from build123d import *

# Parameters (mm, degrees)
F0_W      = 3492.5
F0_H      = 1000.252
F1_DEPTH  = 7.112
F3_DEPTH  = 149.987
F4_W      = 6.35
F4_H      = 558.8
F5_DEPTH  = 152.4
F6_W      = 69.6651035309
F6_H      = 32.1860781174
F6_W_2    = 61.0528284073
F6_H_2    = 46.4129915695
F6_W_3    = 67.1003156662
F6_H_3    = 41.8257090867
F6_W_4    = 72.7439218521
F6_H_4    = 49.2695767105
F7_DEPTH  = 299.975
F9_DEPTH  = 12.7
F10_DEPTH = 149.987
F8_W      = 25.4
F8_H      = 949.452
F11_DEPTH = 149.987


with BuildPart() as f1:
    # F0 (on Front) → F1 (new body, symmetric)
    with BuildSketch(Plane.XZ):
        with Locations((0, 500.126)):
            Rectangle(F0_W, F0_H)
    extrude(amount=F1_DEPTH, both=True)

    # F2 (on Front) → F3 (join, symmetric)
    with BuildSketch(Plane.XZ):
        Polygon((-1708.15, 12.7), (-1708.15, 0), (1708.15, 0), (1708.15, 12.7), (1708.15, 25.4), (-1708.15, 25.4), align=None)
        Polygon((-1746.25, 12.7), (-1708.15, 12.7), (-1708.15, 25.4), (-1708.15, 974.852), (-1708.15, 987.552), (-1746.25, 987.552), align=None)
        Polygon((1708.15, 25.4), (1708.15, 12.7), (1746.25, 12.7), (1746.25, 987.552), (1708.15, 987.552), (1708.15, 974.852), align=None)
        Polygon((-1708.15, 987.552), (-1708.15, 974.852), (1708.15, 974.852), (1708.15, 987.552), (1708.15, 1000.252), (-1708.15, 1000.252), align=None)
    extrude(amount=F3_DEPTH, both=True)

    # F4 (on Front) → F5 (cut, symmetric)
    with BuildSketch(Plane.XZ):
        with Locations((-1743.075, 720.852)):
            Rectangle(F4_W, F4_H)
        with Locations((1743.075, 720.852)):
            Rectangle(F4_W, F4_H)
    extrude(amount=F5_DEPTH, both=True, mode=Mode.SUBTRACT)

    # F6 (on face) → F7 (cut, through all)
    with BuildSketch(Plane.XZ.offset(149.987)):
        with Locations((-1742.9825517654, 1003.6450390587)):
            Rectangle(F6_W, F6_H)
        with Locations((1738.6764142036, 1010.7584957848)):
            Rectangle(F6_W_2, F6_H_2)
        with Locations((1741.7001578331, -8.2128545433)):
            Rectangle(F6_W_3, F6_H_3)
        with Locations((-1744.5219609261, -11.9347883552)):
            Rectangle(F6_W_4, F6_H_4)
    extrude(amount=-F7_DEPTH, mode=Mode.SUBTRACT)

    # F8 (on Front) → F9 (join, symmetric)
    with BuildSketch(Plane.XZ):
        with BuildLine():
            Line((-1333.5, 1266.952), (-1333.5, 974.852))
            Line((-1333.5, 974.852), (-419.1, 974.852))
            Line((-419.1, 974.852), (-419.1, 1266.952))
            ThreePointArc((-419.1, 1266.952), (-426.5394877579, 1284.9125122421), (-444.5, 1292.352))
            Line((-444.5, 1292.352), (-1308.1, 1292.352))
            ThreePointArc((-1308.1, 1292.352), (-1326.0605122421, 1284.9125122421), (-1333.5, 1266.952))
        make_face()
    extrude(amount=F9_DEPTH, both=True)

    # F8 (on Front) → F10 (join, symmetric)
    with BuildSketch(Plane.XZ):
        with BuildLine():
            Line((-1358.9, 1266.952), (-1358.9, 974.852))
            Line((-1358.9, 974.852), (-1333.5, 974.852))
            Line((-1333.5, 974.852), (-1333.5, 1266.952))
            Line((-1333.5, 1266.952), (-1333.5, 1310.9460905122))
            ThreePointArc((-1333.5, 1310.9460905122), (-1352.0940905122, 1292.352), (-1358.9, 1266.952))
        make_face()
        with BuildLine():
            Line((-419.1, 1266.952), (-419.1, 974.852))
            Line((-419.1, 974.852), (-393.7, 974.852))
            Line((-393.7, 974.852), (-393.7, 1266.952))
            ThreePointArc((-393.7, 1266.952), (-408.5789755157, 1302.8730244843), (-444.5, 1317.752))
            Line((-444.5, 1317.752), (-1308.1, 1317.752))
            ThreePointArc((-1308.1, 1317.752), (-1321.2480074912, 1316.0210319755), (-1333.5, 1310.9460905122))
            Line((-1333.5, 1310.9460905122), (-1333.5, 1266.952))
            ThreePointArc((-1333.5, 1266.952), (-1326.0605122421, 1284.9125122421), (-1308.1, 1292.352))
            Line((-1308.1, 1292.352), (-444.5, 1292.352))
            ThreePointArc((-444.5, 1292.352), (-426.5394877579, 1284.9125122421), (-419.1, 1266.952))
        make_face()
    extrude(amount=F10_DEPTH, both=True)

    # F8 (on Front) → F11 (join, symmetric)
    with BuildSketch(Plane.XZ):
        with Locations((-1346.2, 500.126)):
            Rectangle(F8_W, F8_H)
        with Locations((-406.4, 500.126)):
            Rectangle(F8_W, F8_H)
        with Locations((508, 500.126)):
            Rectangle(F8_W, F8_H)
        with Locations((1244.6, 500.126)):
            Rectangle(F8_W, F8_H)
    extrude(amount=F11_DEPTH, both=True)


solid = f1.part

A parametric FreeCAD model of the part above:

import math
import FreeCAD as App
import Part
import Sketcher
Q = App.Units.Quantity


def add_polygon(sketch, points):
    """Adds a closed chain of lines whose ends are joined by coincident constraints."""
    first, n = sketch.GeometryCount, len(points)
    for a, b in zip(points, points[1:] + points[:1]):
        sketch.addGeometry(Part.LineSegment(App.Vector(*a, 0), App.Vector(*b, 0)), False)
    for i in range(n):
        sketch.addConstraint(Sketcher.Constraint("Coincident", first + i, 2, first + (i + 1) % n, 1))

doc = App.newDocument("Part")
body = doc.addObject("PartDesign::Body", "Body")

# Sketch on XZ plane
sketch1 = body.newObject("Sketcher::SketchObject", "Sketch")
sketch1.AttachmentSupport = (doc.getObject("XZ_Plane"), [""])
sketch1.MapMode = "FlatFace"
add_polygon(sketch1, [(-1746.25, 1000.252), (-1746.25, 0), (1746.25, 0), (1746.25, 1000.252)])  # lines 0-3
sketch1.addConstraint([
    Sketcher.Constraint("Vertical", 0),
    Sketcher.Constraint("Horizontal", 1),
    Sketcher.Constraint("Vertical", 2),
    Sketcher.Constraint("Horizontal", 3),
    Sketcher.Constraint("Symmetric", 0, 2, 1, 2, -1, 1),
    Sketcher.Constraint("DistanceX", 1, 1, 1, 2, Q("137.5 in")),
    Sketcher.Constraint("DistanceY", 0, 2, 0, 1, Q("39.38 in")),
])
pad1 = body.newObject("PartDesign::Pad", "Pad")
pad1.Profile = sketch1
pad1.Length = Q("0.56 in")
pad1.Midplane = True

# Sketch on XZ plane
sketch2 = body.newObject("Sketcher::SketchObject", "Sketch001")
sketch2.AttachmentSupport = (doc.getObject("XZ_Plane"), [""])
sketch2.MapMode = "FlatFace"
add_polygon(sketch2, [(-1708.15, 0), (1708.15, 0), (1708.15, 12.7), (1746.25, 12.7), (1746.25, 987.552), (1708.15, 987.552), (1708.15, 1000.252), (-1708.15, 1000.252), (-1708.15, 987.552), (-1746.25, 987.552), (-1746.25, 12.7), (-1708.15, 12.7)])  # lines 0-11
add_polygon(sketch2, [(1708.15, 974.852), (1708.15, 25.4), (-1708.15, 25.4), (-1708.15, 974.852)])  # lines 12-15
sketch2.addConstraint([
    Sketcher.Constraint("Horizontal", 0),
    Sketcher.Constraint("Vertical", 1),
    Sketcher.Constraint("Horizontal", 2),
    Sketcher.Constraint("Vertical", 3),
    Sketcher.Constraint("Horizontal", 4),
    Sketcher.Constraint("Vertical", 5),
    Sketcher.Constraint("Horizontal", 6),
    Sketcher.Constraint("Vertical", 7),
    Sketcher.Constraint("Horizontal", 8),
    Sketcher.Constraint("Vertical", 9),
    Sketcher.Constraint("Horizontal", 10),
    Sketcher.Constraint("Vertical", 11),
    Sketcher.Constraint("Vertical", 12),
    Sketcher.Constraint("Horizontal", 13),
    Sketcher.Constraint("Vertical", 14),
    Sketcher.Constraint("Horizontal", 15),
    Sketcher.Constraint("Symmetric", 0, 2, 11, 2, -1, 1),
    Sketcher.Constraint("Symmetric", 4, 2, 7, 2, -2),
    Sketcher.Constraint("Symmetric", 2, 2, 9, 2, -2),
    Sketcher.Constraint("Vertical", 1, 2, 4, 2),
    Sketcher.Constraint("Vertical", 5, 2, 12, 2),
    Sketcher.Constraint("Vertical", 11, 2, 13, 2),
    Sketcher.Constraint("Equal", 1, 5),
    Sketcher.Constraint("DistanceX", 0, 1, 0, 2, Q("134.5 in")),
    Sketcher.Constraint("DistanceX", 2, 1, 2, 2, Q("1.5 in")),
    Sketcher.Constraint("DistanceY", 1, 1, 1, 2, Q("0.5 in")),
    Sketcher.Constraint("DistanceY", -1, 1, 12, 2, Q("1 in")),
    Sketcher.Constraint("DistanceY", 14, 2, 6, 2, Q("1 in")),
    Sketcher.Constraint("DistanceY", 3, 1, 3, 2, Q("38.38 in")),
])
pad2 = body.newObject("PartDesign::Pad", "Pad001")
pad2.Profile = sketch2
pad2.Length = Q("11.81 in")
pad2.Midplane = True

# Sketch on XZ plane
sketch3 = body.newObject("Sketcher::SketchObject", "Sketch002")
sketch3.AttachmentSupport = (doc.getObject("XZ_Plane"), [""])
sketch3.MapMode = "FlatFace"
add_polygon(sketch3, [(-1746.25, 1000.252), (-1746.25, 441.452), (-1739.9, 441.452), (-1739.9, 1000.252)])  # lines 0-3
add_polygon(sketch3, [(1739.9, 1000.252), (1739.9, 441.452), (1746.25, 441.452), (1746.25, 1000.252)])  # lines 4-7
sketch3.addConstraint([
    Sketcher.Constraint("Vertical", 0),
    Sketcher.Constraint("Horizontal", 1),
    Sketcher.Constraint("Vertical", 2),
    Sketcher.Constraint("Horizontal", 3),
    Sketcher.Constraint("Vertical", 4),
    Sketcher.Constraint("Horizontal", 5),
    Sketcher.Constraint("Vertical", 6),
    Sketcher.Constraint("Horizontal", 7),
    Sketcher.Constraint("Symmetric", 1, 2, 4, 2, -2),
    Sketcher.Constraint("Symmetric", 3, 2, 6, 2, -2),
    Sketcher.Constraint("DistanceY", 0, 2, 0, 1, Q("22 in")),
    Sketcher.Constraint("DistanceX", 1, 2, 4, 2, Q("137 in")),
    Sketcher.Constraint("DistanceX", 1, 1, 1, 2, Q("0.25 in")),
    Sketcher.Constraint("DistanceY", -1, 1, 0, 2, Q("17.38 in")),
])
pocket1 = body.newObject("PartDesign::Pocket", "Pocket")
pocket1.Profile = sketch3
pocket1.Length = Q("12 in")
pocket1.Midplane = True

# Sketch on XZ plane
sketch4 = body.newObject("Sketcher::SketchObject", "Sketch003")
sketch4.AttachmentSupport = (doc.getObject("XZ_Plane"), [""])
sketch4.MapMode = "FlatFace"
sketch4.AttachmentOffset = App.Placement(App.Vector(0, 0, 5.905 * 25.4), App.Rotation())
add_polygon(sketch4, [(-1777.815104, 1019.738078), (-1777.815104, 987.552), (-1708.15, 987.552), (-1708.15, 1019.738078)])  # lines 0-3
add_polygon(sketch4, [(1708.15, 1033.964992), (1708.15, 987.552), (1769.202828, 987.552), (1769.202828, 1033.964992)])  # lines 4-7
add_polygon(sketch4, [(1708.15, 12.7), (1708.15, -29.125709), (1775.250316, -29.125709), (1775.250316, 12.7)])  # lines 8-11
add_polygon(sketch4, [(-1780.893922, 12.7), (-1780.893922, -36.569577), (-1708.15, -36.569577), (-1708.15, 12.7)])  # lines 12-15
sketch4.addConstraint([
    Sketcher.Constraint("Vertical", 0),
    Sketcher.Constraint("Horizontal", 1),
    Sketcher.Constraint("Vertical", 2),
    Sketcher.Constraint("Horizontal", 3),
    Sketcher.Constraint("Vertical", 4),
    Sketcher.Constraint("Horizontal", 5),
    Sketcher.Constraint("Vertical", 6),
    Sketcher.Constraint("Horizontal", 7),
    Sketcher.Constraint("Vertical", 8),
    Sketcher.Constraint("Horizontal", 9),
    Sketcher.Constraint("Vertical", 10),
    Sketcher.Constraint("Horizontal", 11),
    Sketcher.Constraint("Vertical", 12),
    Sketcher.Constraint("Horizontal", 13),
    Sketcher.Constraint("Vertical", 14),
    Sketcher.Constraint("Horizontal", 15),
    Sketcher.Constraint("Symmetric", 1, 2, 4, 2, -2),
    Sketcher.Constraint("Symmetric", 11, 2, 14, 2, -2),
    Sketcher.Constraint("Vertical", 7, 2, 8, 2),
    Sketcher.Constraint("DistanceY", -1, 1, 10, 2, Q("0.5 in")),
    Sketcher.Constraint("DistanceX", 1, 2, 4, 2, Q("134.5 in")),
    Sketcher.Constraint("DistanceY", -1, 1, 0, 2, Q("38.88 in")),
    Sketcher.Constraint("DistanceX", 5, 1, 5, 2, Q("61.052828 mm")),
    Sketcher.Constraint("DistanceX", 13, 1, 13, 2, Q("72.743922 mm")),
    Sketcher.Constraint("DistanceY", 0, 2, 0, 1, Q("32.186078 mm")),
    Sketcher.Constraint("DistanceY", 4, 2, 4, 1, Q("46.412992 mm")),
    Sketcher.Constraint("DistanceY", 8, 2, 8, 1, Q("41.825709 mm")),
    Sketcher.Constraint("DistanceX", 1, 1, 1, 2, Q("69.665104 mm")),
    Sketcher.Constraint("DistanceX", 9, 1, 9, 2, Q("67.100316 mm")),
    Sketcher.Constraint("DistanceY", 12, 2, 12, 1, Q("49.269577 mm")),
])
pocket2 = body.newObject("PartDesign::Pocket", "Pocket001")
pocket2.Profile = sketch4
pocket2.Type = "ThroughAll"

# Sketch on XZ plane
sketch5 = body.newObject("Sketcher::SketchObject", "Sketch004")
sketch5.AttachmentSupport = (doc.getObject("XZ_Plane"), [""])
sketch5.MapMode = "FlatFace"
sketch5.addGeometry([
    Part.LineSegment(App.Vector(-1333.5, 1266.952, 0), App.Vector(-1333.5, 974.852, 0)),  # 0
    Part.LineSegment(App.Vector(-1333.5, 974.852, 0), App.Vector(-419.1, 974.852, 0)),  # 1
    Part.LineSegment(App.Vector(-419.1, 974.852, 0), App.Vector(-419.1, 1266.952, 0)),  # 2
    Part.ArcOfCircle(Part.Circle(App.Vector(-444.5, 1266.952, 0), App.Vector(0, 0, 1), 25.4), math.radians(0), math.radians(90)),  # 3
    Part.LineSegment(App.Vector(-444.5, 1292.352, 0), App.Vector(-1308.1, 1292.352, 0)),  # 4
    Part.ArcOfCircle(Part.Circle(App.Vector(-1308.1, 1266.952, 0), App.Vector(0, 0, 1), 25.4), math.radians(90), math.radians(180)),  # 5
], False)
sketch5.addConstraint([
    Sketcher.Constraint("Coincident", 0, 2, 1, 1),
    Sketcher.Constraint("Coincident", 1, 2, 2, 1),
    Sketcher.Constraint("Tangent", 2, 2, 3, 1),
    Sketcher.Constraint("Tangent", 3, 2, 4, 1),
    Sketcher.Constraint("Tangent", 4, 2, 5, 1),
    Sketcher.Constraint("Tangent", 5, 2, 0, 1),
    Sketcher.Constraint("Vertical", 0),
    Sketcher.Constraint("Horizontal", 1),
    Sketcher.Constraint("Vertical", 2),
    Sketcher.Constraint("Horizontal", 4),
    Sketcher.Constraint("Equal", 3, 5),
    Sketcher.Constraint("Radius", 3, Q("1 in")),
    Sketcher.Constraint("DistanceX", 1, 1, 1, 2, Q("36 in")),
    Sketcher.Constraint("DistanceY", 0, 2, 0, 1, Q("11.5 in")),
    Sketcher.Constraint("DistanceX", 3, 3, -1, 1, Q("17.5 in")),
    Sketcher.Constraint("DistanceY", -1, 1, 3, 3, Q("49.88 in")),
])
pad3 = body.newObject("PartDesign::Pad", "Pad002")
pad3.Profile = sketch5
pad3.Length = Q("1 in")
pad3.Midplane = True

# Sketch on XZ plane
sketch6 = body.newObject("Sketcher::SketchObject", "Sketch005")
sketch6.AttachmentSupport = (doc.getObject("XZ_Plane"), [""])
sketch6.MapMode = "FlatFace"
sketch6.addGeometry([
    Part.LineSegment(App.Vector(-1358.9, 1266.952, 0), App.Vector(-1358.9, 974.852, 0)),  # 0
    Part.LineSegment(App.Vector(-1358.9, 974.852, 0), App.Vector(-1333.5, 974.852, 0)),  # 1
    Part.LineSegment(App.Vector(-1333.5, 974.852, 0), App.Vector(-1333.5, 1266.952, 0)),  # 2
    Part.ArcOfCircle(Part.Circle(App.Vector(-1308.1, 1266.952, 0), App.Vector(0, 0, 1), 25.4), math.radians(90), math.radians(180)),  # 3
    Part.LineSegment(App.Vector(-1308.1, 1292.352, 0), App.Vector(-444.5, 1292.352, 0)),  # 4
    Part.ArcOfCircle(Part.Circle(App.Vector(-444.5, 1266.952, 0), App.Vector(0, 0, 1), 25.4), math.radians(0), math.radians(90)),  # 5
    Part.LineSegment(App.Vector(-419.1, 1266.952, 0), App.Vector(-419.1, 974.852, 0)),  # 6
    Part.LineSegment(App.Vector(-419.1, 974.852, 0), App.Vector(-393.7, 974.852, 0)),  # 7
    Part.LineSegment(App.Vector(-393.7, 974.852, 0), App.Vector(-393.7, 1266.952, 0)),  # 8
    Part.ArcOfCircle(Part.Circle(App.Vector(-444.5, 1266.952, 0), App.Vector(0, 0, 1), 50.8), math.radians(0), math.radians(90)),  # 9
    Part.LineSegment(App.Vector(-444.5, 1317.752, 0), App.Vector(-1308.1, 1317.752, 0)),  # 10
    Part.ArcOfCircle(Part.Circle(App.Vector(-1308.1, 1266.952, 0), App.Vector(0, 0, 1), 50.8), math.radians(90), math.radians(120)),  # 11
    Part.ArcOfCircle(Part.Circle(App.Vector(-1308.1, 1266.952, 0), App.Vector(0, 0, 1), 50.8), math.radians(120), math.radians(180)),  # 12
], False)
sketch6.addConstraint([
    Sketcher.Constraint("Coincident", 0, 2, 1, 1),
    Sketcher.Constraint("Coincident", 1, 2, 2, 1),
    Sketcher.Constraint("Tangent", 2, 2, 3, 2),
    Sketcher.Constraint("Tangent", 3, 1, 4, 1),
    Sketcher.Constraint("Tangent", 4, 2, 5, 2),
    Sketcher.Constraint("Tangent", 5, 1, 6, 1),
    Sketcher.Constraint("Coincident", 6, 2, 7, 1),
    Sketcher.Constraint("Coincident", 7, 2, 8, 1),
    Sketcher.Constraint("Tangent", 8, 2, 9, 1),
    Sketcher.Constraint("Tangent", 9, 2, 10, 1),
    Sketcher.Constraint("Tangent", 10, 2, 11, 1),
    Sketcher.Constraint("Tangent", 11, 2, 12, 1),
    Sketcher.Constraint("Tangent", 12, 2, 0, 1),
    Sketcher.Constraint("Vertical", 0),
    Sketcher.Constraint("Horizontal", 1),
    Sketcher.Constraint("Vertical", 2),
    Sketcher.Constraint("Horizontal", 4),
    Sketcher.Constraint("Vertical", 6),
    Sketcher.Constraint("Horizontal", 7),
    Sketcher.Constraint("Vertical", 8),
    Sketcher.Constraint("Horizontal", 10),
    Sketcher.Constraint("Coincident", 9, 3, 5, 3),
    Sketcher.Constraint("Coincident", 11, 3, 3, 3),
    Sketcher.Constraint("Equal", 3, 5),
    Sketcher.Constraint("Equal", 11, 12),
    Sketcher.Constraint("Horizontal", 1, 2, 6, 2),
    Sketcher.Constraint("Vertical", 2, 2, 11, 2),
    Sketcher.Constraint("Radius", 3, Q("1 in")),
    Sketcher.Constraint("Radius", 9, Q("2 in")),
    Sketcher.Constraint("DistanceX", 4, 1, 4, 2, Q("34 in")),
    Sketcher.Constraint("DistanceY", 0, 2, 0, 1, Q("11.5 in")),
    Sketcher.Constraint("DistanceX", 3, 3, -1, 1, Q("51.5 in")),
    Sketcher.Constraint("DistanceY", -1, 1, 3, 3, Q("49.88 in")),
])
pad4 = body.newObject("PartDesign::Pad", "Pad003")
pad4.Profile = sketch6
pad4.Length = Q("11.81 in")
pad4.Midplane = True

# Sketch on XZ plane
sketch7 = body.newObject("Sketcher::SketchObject", "Sketch006")
sketch7.AttachmentSupport = (doc.getObject("XZ_Plane"), [""])
sketch7.MapMode = "FlatFace"
add_polygon(sketch7, [(-1358.9, 974.852), (-1358.9, 25.4), (-1333.5, 25.4), (-1333.5, 974.852)])  # lines 0-3
add_polygon(sketch7, [(-419.1, 974.852), (-419.1, 25.4), (-393.7, 25.4), (-393.7, 974.852)])  # lines 4-7
add_polygon(sketch7, [(495.3, 974.852), (495.3, 25.4), (520.7, 25.4), (520.7, 974.852)])  # lines 8-11
add_polygon(sketch7, [(1231.9, 974.852), (1231.9, 25.4), (1257.3, 25.4), (1257.3, 974.852)])  # lines 12-15
sketch7.addConstraint([
    Sketcher.Constraint("Vertical", 0),
    Sketcher.Constraint("Horizontal", 1),
    Sketcher.Constraint("Vertical", 2),
    Sketcher.Constraint("Horizontal", 3),
    Sketcher.Constraint("Vertical", 4),
    Sketcher.Constraint("Horizontal", 5),
    Sketcher.Constraint("Vertical", 6),
    Sketcher.Constraint("Horizontal", 7),
    Sketcher.Constraint("Vertical", 8),
    Sketcher.Constraint("Horizontal", 9),
    Sketcher.Constraint("Vertical", 10),
    Sketcher.Constraint("Horizontal", 11),
    Sketcher.Constraint("Vertical", 12),
    Sketcher.Constraint("Horizontal", 13),
    Sketcher.Constraint("Vertical", 14),
    Sketcher.Constraint("Horizontal", 15),
    Sketcher.Constraint("Horizontal", 1, 2, 4, 2),
    Sketcher.Constraint("Horizontal", 3, 2, 6, 2),
    Sketcher.Constraint("Horizontal", 5, 2, 8, 2),
    Sketcher.Constraint("Horizontal", 7, 2, 10, 2),
    Sketcher.Constraint("Horizontal", 9, 2, 12, 2),
    Sketcher.Constraint("Horizontal", 11, 2, 14, 2),
    Sketcher.Constraint("Equal", 3, 5),
    Sketcher.Constraint("Equal", 7, 9),
    Sketcher.Constraint("Equal", 11, 13),
    Sketcher.Constraint("DistanceX", 1, 1, 1, 2, Q("1 in")),
    Sketcher.Constraint("DistanceY", -1, 1, 0, 2, Q("1 in")),
    Sketcher.Constraint("DistanceX", 1, 2, 4, 2, Q("36 in")),
    Sketcher.Constraint("DistanceX", 5, 2, 8, 2, Q("35 in")),
    Sketcher.Constraint("DistanceX", 9, 2, 12, 2, Q("28 in")),
    Sketcher.Constraint("DistanceY", 0, 2, 0, 1, Q("37.38 in")),
    Sketcher.Constraint("DistanceX", 0, 2, -1, 1, Q("53.5 in")),
])
pad5 = body.newObject("PartDesign::Pad", "Pad004")
pad5.Profile = sketch7
pad5.Length = Q("11.81 in")
pad5.Midplane = True

doc.recompute()
